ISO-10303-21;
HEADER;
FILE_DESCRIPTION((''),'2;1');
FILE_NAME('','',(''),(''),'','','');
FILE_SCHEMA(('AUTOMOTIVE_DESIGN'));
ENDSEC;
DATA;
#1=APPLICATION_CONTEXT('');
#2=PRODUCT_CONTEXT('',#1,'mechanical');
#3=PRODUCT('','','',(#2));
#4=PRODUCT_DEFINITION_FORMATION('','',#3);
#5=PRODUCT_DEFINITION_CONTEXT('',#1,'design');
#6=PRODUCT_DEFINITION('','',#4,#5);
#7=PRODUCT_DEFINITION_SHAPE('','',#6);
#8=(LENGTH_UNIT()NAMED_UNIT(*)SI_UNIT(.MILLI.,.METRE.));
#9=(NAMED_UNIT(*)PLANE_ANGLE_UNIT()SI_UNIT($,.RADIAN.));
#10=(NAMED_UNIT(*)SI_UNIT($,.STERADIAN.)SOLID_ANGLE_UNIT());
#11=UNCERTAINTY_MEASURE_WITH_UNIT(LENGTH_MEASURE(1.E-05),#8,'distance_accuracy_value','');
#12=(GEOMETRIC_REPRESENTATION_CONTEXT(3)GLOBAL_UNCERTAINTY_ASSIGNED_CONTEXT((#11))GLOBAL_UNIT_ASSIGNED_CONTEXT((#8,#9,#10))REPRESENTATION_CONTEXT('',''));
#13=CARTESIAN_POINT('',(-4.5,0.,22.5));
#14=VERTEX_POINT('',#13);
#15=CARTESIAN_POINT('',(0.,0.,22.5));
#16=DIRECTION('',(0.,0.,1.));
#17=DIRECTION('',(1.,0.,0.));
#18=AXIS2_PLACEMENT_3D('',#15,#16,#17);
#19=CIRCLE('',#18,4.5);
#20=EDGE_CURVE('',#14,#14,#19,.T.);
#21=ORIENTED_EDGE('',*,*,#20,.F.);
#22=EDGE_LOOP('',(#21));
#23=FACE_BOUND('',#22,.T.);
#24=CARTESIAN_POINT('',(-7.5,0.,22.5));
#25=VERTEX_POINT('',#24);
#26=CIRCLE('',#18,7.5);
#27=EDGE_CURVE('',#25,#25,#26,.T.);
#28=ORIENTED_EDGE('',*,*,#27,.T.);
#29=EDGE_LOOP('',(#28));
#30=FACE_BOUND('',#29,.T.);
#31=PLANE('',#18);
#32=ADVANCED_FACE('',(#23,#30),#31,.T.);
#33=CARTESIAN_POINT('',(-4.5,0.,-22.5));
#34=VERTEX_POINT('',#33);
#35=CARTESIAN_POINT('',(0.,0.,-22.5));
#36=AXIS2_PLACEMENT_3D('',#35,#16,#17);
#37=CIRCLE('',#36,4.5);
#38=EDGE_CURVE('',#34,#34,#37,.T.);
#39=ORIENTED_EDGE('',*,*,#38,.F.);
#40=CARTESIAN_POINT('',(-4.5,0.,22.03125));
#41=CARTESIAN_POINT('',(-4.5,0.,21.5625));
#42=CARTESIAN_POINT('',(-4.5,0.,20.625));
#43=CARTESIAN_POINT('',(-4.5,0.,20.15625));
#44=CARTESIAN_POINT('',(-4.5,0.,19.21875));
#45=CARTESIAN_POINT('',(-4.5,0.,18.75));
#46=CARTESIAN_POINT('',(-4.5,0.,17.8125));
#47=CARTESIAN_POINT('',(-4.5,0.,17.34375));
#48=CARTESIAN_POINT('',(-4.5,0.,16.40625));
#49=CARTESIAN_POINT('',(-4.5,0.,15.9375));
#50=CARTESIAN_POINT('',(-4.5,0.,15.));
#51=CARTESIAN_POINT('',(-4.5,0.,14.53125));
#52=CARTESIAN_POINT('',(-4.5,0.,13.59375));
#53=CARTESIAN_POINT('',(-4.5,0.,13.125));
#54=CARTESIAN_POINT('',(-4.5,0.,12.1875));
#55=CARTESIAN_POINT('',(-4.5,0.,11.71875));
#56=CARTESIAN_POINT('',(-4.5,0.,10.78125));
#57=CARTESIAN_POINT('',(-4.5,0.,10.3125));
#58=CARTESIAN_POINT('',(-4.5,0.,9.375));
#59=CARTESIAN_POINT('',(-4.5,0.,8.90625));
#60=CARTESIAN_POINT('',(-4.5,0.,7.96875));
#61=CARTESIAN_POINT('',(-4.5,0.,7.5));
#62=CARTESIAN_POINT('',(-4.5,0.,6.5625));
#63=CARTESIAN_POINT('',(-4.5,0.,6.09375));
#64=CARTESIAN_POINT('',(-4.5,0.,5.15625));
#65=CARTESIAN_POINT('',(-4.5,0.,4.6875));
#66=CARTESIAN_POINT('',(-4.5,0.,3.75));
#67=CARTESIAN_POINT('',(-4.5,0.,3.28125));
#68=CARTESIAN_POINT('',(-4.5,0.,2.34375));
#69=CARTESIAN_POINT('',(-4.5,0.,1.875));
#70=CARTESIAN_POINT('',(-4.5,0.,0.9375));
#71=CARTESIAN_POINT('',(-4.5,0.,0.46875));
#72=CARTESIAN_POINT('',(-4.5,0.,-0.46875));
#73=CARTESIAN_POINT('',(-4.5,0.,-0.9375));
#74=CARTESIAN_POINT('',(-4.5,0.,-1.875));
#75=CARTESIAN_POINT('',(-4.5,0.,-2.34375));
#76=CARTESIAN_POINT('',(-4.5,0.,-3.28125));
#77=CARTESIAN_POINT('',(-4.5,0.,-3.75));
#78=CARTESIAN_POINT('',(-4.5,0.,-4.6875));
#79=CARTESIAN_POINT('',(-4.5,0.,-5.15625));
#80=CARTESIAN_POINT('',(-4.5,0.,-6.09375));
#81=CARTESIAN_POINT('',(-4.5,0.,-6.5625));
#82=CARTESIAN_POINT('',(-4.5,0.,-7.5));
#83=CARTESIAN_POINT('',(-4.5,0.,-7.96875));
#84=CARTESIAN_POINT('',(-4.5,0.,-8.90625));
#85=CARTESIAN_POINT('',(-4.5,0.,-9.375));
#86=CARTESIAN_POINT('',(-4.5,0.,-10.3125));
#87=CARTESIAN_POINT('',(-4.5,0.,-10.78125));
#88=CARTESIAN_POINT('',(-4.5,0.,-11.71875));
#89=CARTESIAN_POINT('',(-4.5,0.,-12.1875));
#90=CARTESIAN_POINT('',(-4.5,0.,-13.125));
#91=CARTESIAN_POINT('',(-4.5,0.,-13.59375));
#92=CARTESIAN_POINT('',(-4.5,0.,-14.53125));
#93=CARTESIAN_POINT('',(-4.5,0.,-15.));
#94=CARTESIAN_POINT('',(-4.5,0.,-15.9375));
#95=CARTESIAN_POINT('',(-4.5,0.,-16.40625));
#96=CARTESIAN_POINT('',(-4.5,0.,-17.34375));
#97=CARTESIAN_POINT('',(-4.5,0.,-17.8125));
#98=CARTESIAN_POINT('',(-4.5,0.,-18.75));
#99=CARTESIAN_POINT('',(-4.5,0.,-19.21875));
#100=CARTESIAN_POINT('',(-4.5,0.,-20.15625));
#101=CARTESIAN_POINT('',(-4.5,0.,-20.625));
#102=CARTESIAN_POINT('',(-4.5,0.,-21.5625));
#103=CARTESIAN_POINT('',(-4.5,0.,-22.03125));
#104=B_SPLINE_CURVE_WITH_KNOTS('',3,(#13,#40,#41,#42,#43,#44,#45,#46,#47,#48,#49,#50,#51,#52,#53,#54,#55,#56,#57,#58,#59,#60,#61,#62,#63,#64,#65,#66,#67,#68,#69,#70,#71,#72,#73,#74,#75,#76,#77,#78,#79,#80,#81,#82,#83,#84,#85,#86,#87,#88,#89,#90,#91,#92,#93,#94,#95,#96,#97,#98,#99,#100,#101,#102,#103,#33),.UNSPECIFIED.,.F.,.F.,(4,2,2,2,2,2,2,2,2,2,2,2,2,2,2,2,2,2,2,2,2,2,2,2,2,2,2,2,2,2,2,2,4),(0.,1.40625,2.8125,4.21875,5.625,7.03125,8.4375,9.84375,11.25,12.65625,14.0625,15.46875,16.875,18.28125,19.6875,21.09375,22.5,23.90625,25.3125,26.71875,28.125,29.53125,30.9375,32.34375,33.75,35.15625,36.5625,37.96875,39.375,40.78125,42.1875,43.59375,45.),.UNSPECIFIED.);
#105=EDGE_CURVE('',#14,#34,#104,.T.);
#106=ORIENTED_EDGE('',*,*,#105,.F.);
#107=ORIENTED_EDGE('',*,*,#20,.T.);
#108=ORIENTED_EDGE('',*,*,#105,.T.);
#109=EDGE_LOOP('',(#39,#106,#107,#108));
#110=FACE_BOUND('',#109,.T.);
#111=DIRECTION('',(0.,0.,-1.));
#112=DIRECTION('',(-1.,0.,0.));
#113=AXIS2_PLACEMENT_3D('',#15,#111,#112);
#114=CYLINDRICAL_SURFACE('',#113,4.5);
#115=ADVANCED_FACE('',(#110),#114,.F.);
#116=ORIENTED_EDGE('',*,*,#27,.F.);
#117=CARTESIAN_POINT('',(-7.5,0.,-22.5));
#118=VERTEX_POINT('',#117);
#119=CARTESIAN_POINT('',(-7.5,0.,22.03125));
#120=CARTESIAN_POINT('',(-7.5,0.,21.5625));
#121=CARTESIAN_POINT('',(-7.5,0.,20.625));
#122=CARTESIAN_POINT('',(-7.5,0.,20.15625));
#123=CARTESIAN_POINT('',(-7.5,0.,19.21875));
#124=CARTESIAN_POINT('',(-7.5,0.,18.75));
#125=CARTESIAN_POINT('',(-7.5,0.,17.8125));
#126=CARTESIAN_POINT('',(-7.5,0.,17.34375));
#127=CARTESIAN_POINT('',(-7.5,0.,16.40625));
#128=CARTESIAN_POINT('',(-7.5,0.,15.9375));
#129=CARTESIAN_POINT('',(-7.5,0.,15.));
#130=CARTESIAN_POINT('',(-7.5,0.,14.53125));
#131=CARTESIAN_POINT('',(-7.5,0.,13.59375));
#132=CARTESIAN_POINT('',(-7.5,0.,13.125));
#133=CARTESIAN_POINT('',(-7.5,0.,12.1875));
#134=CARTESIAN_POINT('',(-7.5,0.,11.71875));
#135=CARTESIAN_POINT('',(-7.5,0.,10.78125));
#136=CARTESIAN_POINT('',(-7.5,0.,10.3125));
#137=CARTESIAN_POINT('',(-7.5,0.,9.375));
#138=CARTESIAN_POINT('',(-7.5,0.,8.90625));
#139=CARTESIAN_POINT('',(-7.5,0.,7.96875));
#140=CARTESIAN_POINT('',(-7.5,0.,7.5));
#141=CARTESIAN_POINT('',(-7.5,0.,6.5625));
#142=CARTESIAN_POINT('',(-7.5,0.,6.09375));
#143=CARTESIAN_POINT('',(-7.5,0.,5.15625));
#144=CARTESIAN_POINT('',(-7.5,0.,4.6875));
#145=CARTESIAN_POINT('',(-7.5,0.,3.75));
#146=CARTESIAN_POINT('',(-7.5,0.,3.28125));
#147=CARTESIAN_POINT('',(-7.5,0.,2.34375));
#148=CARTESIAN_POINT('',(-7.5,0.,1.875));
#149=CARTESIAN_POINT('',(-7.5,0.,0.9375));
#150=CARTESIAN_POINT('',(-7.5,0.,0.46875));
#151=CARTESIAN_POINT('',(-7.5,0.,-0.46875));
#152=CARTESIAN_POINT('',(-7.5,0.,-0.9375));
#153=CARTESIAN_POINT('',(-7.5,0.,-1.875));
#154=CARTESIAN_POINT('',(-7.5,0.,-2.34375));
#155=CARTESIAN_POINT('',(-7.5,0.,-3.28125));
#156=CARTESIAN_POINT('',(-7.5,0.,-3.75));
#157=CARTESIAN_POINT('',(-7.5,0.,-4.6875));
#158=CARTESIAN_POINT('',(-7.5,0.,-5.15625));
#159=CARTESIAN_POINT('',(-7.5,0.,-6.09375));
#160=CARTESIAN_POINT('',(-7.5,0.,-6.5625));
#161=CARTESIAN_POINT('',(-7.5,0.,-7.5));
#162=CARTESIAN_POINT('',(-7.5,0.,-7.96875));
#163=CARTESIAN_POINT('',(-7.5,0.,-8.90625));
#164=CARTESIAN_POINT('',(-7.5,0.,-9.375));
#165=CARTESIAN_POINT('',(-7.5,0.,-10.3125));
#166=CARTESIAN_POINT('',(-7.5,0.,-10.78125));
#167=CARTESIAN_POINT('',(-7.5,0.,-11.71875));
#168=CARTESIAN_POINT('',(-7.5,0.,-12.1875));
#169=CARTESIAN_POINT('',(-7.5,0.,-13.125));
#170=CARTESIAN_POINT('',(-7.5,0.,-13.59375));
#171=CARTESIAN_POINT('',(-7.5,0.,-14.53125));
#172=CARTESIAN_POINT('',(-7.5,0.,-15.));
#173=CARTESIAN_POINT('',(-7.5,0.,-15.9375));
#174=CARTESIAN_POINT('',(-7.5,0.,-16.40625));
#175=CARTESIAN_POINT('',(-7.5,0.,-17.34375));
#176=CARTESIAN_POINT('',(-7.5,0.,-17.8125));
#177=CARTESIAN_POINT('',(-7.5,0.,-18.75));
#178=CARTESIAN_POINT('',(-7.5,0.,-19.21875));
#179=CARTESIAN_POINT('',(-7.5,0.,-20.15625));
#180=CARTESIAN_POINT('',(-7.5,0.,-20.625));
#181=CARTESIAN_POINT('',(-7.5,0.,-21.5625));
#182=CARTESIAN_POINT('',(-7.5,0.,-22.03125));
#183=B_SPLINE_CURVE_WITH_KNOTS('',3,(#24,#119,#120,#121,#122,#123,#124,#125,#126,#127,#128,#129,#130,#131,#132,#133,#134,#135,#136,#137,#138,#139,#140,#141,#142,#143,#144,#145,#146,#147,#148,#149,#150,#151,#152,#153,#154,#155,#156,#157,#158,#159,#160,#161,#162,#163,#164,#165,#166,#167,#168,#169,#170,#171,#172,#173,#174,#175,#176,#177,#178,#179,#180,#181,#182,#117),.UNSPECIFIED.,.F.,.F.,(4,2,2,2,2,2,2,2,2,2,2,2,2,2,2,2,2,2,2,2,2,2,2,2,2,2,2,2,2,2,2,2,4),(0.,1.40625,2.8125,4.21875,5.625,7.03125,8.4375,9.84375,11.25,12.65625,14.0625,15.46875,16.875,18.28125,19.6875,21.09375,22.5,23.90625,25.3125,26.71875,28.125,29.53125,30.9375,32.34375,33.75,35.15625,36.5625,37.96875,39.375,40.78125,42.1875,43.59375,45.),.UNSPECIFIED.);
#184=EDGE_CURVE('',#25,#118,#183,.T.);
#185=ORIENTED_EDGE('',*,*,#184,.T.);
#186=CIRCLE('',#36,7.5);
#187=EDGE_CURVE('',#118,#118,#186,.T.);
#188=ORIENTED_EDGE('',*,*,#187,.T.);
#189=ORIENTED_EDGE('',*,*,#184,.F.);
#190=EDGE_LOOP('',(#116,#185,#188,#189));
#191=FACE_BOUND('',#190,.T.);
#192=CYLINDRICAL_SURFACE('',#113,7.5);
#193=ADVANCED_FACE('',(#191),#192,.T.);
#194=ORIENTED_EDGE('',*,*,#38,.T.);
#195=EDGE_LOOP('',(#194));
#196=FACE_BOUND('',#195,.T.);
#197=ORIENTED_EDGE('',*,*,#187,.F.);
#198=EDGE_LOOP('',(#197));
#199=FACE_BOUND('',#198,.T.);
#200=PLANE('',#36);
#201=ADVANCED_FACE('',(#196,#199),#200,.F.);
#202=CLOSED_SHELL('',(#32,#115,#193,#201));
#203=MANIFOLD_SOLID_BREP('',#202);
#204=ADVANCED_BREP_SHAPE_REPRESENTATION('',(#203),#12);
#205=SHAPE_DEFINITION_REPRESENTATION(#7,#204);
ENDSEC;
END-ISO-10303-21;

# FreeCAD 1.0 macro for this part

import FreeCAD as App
import Part
import Sketcher
from FreeCAD import Vector
Q = App.Units.Quantity

doc = App.newDocument("Part")
body = doc.addObject("PartDesign::Body", "Body")

# Sketch on XY plane
sketch1 = doc.addObject("Sketcher::SketchObject", "Sketch")
body.addObject(sketch1)
sketch1.AttachmentSupport = (doc.XY_Plane, [""])
sketch1.MapMode = "FlatFace"
sketch1.addGeometry(Part.Circle(Vector(0, 0, 0), Vector(0, 0, 1), 7.5), False)
sketch1.addGeometry(Part.Circle(Vector(0, 0, 0), Vector(0, 0, 1), 4.5), False)
sketch1.addConstraint(Sketcher.Constraint("Coincident", 0, 3, -1, 1))
sketch1.addConstraint(Sketcher.Constraint("Coincident", 1, 3, -1, 1))
sketch1.addConstraint(Sketcher.Constraint("Diameter", 0, Q("15 mm")))
sketch1.addConstraint(Sketcher.Constraint("Diameter", 1, Q("9 mm")))
pad1 = doc.addObject("PartDesign::Pad", "Pad")
body.addObject(pad1)
pad1.Profile = sketch1
pad1.Length = 45
pad1.Midplane = True

doc.recompute()
